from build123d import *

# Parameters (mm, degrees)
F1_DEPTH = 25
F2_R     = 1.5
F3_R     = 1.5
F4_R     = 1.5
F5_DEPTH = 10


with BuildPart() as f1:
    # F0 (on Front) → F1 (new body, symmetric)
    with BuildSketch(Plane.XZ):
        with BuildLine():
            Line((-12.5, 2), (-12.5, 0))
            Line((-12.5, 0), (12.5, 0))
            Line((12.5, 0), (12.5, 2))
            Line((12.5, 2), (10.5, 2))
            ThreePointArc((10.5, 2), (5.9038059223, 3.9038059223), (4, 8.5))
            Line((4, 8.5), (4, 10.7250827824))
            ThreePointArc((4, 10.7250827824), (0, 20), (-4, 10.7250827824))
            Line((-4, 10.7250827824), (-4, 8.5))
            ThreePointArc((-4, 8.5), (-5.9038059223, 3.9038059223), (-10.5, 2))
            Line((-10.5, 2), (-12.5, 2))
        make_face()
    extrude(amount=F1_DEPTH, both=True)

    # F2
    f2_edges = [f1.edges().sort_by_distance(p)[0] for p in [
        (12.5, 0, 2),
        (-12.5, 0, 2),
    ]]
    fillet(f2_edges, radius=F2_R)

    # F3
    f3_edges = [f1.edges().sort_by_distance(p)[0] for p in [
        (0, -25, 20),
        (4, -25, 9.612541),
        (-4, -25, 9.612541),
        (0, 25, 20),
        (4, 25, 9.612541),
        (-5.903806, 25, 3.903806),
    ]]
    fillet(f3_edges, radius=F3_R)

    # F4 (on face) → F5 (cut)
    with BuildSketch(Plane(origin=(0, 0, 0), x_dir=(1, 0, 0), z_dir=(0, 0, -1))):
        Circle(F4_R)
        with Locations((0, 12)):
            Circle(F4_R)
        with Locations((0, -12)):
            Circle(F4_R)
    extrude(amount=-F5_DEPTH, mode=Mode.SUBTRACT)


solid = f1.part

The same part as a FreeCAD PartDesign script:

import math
import FreeCAD as App
import Part
import Sketcher
from FreeCAD import Vector
Q = App.Units.Quantity


def edges_at(feature, points):
    """Names of the edges that pass closest to the given points."""
    edges = feature.Shape.Edges
    near = lambda p: min(range(len(edges)), key=lambda i: edges[i].distToShape(Part.Vertex(*p))[0])
    return sorted({f"Edge{near(p) + 1}" for p in points})

doc = App.newDocument("Part")
body = doc.addObject("PartDesign::Body", "Body")

sketch1 = doc.addObject("Sketcher::SketchObject", "Sketch")
body.addObject(sketch1)
sketch1.AttachmentSupport = (doc.XZ_Plane, [""])
sketch1.MapMode = "FlatFace"
sketch1.addGeometry([
    Part.LineSegment(Vector(-12.5, 2, 0), Vector(-12.5, 0, 0)),
    Part.LineSegment(Vector(-12.5, 0, 0), Vector(12.5, 0, 0)),
    Part.LineSegment(Vector(12.5, 0, 0), Vector(12.5, 2, 0)),
    Part.LineSegment(Vector(12.5, 2, 0), Vector(10.5, 2, 0)),
    Part.ArcOfCircle(Part.Circle(Vector(10.5, 8.5, 0), Vector(0, 0, 1), 6.5), math.radians(180), math.radians(270)),
    Part.LineSegment(Vector(4, 8.5, 0), Vector(4, 10.7, 0)),
    Part.ArcOfCircle(Part.Circle(Vector(0, 14.5, 0), Vector(0, 0, 1), 5.5), math.radians(-43), math.radians(223)),
    Part.LineSegment(Vector(-4, 10.7, 0), Vector(-4, 8.5, 0)),
    Part.ArcOfCircle(Part.Circle(Vector(-10.5, 8.5, 0), Vector(0, 0, 1), 6.5), math.radians(-90), math.radians(0)),
    Part.LineSegment(Vector(-10.5, 2, 0), Vector(-12.5, 2, 0)),
], False)
sketch1.addConstraint([
    Sketcher.Constraint("Coincident", 0, 2, 1, 1),
    Sketcher.Constraint("Coincident", 1, 2, 2, 1),
    Sketcher.Constraint("Coincident", 2, 2, 3, 1),
    Sketcher.Constraint("Tangent", 3, 2, 4, 2),
    Sketcher.Constraint("Tangent", 4, 1, 5, 1),
    Sketcher.Constraint("Coincident", 5, 2, 6, 1),
    Sketcher.Constraint("Coincident", 6, 2, 7, 1),
    Sketcher.Constraint("Tangent", 7, 2, 8, 2),
    Sketcher.Constraint("Tangent", 8, 1, 9, 1),
    Sketcher.Constraint("Coincident", 9, 2, 0, 1),
    Sketcher.Constraint("Vertical", 0),
    Sketcher.Constraint("Horizontal", 1),
    Sketcher.Constraint("Vertical", 2),
    Sketcher.Constraint("Horizontal", 3),
    Sketcher.Constraint("Vertical", 5),
    Sketcher.Constraint("Vertical", 7),
    Sketcher.Constraint("Horizontal", 9),
    Sketcher.Constraint("Equal", 4, 8),
    Sketcher.Constraint("Symmetric", 0, 2, 1, 2, -1, 1),
    Sketcher.Constraint("Symmetric", 4, 3, 8, 3, -2),
    Sketcher.Constraint("PointOnObject", 6, 3, -2),
    Sketcher.Constraint("Equal", 9, 0),
    Sketcher.Constraint("Radius", 4, Q("6.5 mm")),
    Sketcher.Constraint("Radius", 6, Q("5.5 mm")),
    Sketcher.Constraint("DistanceX", 1, 1, 1, 2, Q("25 mm")),
    Sketcher.Constraint("DistanceX", 3, 2, 3, 1, Q("2 mm")),
    Sketcher.Constraint("DistanceY", 4, 3, 6, 3, Q("6 mm")),
])
pad1 = doc.addObject("PartDesign::Pad", "Pad")
body.addObject(pad1)
pad1.Profile = sketch1
pad1.Length = 50
pad1.Midplane = True
doc.recompute()

fillet = doc.addObject("PartDesign::Fillet", "Fillet")
body.addObject(fillet)
fillet.Base = (pad1, edges_at(pad1, [(12.5, 0, 2), (-12.5, 0, 2)]))
fillet.Radius = 1.5
doc.recompute()

fillet2 = doc.addObject("PartDesign::Fillet", "Fillet001")
body.addObject(fillet2)
fillet2.Base = (fillet, edges_at(fillet, [
    (0, -25, 20),
    (4, -25, 9.613),
    (-4, -25, 9.613),
    (0, 25, 20),
    (4, 25, 9.613),
    (-5.904, 25, 3.904),
]))
fillet2.Radius = 1.5

sketch2 = doc.addObject("Sketcher::SketchObject", "Sketch001")
body.addObject(sketch2)
sketch2.AttachmentSupport = (doc.XY_Plane, [""])
sketch2.MapMode = "FlatFace"
sketch2.addGeometry([
    Part.Circle(Vector(0, 0, 0), Vector(0, 0, 1), 1.5),
    Part.Circle(Vector(0, -12, 0), Vector(0, 0, 1), 1.5),
    Part.Circle(Vector(0, 12, 0), Vector(0, 0, 1), 1.5),
], False)
sketch2.addConstraint([
    Sketcher.Constraint("Coincident", 0, 3, -1, 1),
    Sketcher.Constraint("Equal", 0, 1),
    Sketcher.Constraint("Equal", 1, 2),
    Sketcher.Constraint("Symmetric", 1, 3, 2, 3, -1, 1),
    Sketcher.Constraint("PointOnObject", 1, 3, -2),
    Sketcher.Constraint("Diameter", 0, Q("3 mm")),
    Sketcher.Constraint("DistanceY", 1, 3, -1, 1, Q("12 mm")),
])
pocket1 = doc.addObject("PartDesign::Pocket", "Pocket")
body.addObject(pocket1)
pocket1.Profile = sketch2
pocket1.Length = 10
pocket1.Reversed = True

doc.recompute()
